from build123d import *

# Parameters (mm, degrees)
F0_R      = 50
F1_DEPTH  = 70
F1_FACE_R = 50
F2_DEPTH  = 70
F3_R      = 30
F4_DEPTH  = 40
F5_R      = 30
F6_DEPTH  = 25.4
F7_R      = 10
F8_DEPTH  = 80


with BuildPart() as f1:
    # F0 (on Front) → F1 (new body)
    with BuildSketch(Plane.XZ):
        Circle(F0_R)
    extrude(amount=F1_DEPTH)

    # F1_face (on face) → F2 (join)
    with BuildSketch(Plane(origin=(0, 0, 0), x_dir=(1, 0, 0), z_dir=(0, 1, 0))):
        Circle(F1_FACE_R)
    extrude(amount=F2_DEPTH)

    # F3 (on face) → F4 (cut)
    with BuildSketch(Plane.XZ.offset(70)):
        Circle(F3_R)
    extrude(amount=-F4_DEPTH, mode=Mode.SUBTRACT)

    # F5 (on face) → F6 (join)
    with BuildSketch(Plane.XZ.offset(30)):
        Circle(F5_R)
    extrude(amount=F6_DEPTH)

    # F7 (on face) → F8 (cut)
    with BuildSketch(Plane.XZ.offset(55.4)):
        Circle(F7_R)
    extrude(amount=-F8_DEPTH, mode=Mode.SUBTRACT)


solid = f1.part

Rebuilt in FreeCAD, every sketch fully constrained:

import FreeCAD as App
import Part
import Sketcher
from FreeCAD import Vector
Q = App.Units.Quantity

doc = App.newDocument("Part")
body = doc.addObject("PartDesign::Body", "Body")

# Sketch on XZ plane
sketch1 = body.newObject("Sketcher::SketchObject", "Sketch")
sketch1.AttachmentSupport = (doc.getObject("XZ_Plane"), [""])
sketch1.MapMode = "FlatFace"
sketch1.addGeometry(Part.Circle(Vector(0, 0, 0), Vector(0, 0, 1), 50), False)
sketch1.addConstraint(Sketcher.Constraint("Coincident", 0, 3, -1, 1))
sketch1.addConstraint(Sketcher.Constraint("Diameter", 0, Q("100 mm")))
pad1 = body.newObject("PartDesign::Pad", "Pad")
pad1.Profile = sketch1
pad1.Length = 70

# Sketch on XZ plane
sketch2 = body.newObject("Sketcher::SketchObject", "Sketch001")
sketch2.AttachmentSupport = (doc.getObject("XZ_Plane"), [""])
sketch2.MapMode = "FlatFace"
sketch2.addGeometry(Part.Circle(Vector(0, 0, 0), Vector(0, 0, 1), 50), False)
sketch2.addConstraint(Sketcher.Constraint("Coincident", 0, 3, -1, 1))
sketch2.addConstraint(Sketcher.Constraint("Diameter", 0, Q("100 mm")))
pad2 = body.newObject("PartDesign::Pad", "Pad001")
pad2.Profile = sketch2
pad2.Length = 70
pad2.Reversed = True

# Sketch on XZ plane
sketch3 = body.newObject("Sketcher::SketchObject", "Sketch002")
sketch3.AttachmentSupport = (doc.getObject("XZ_Plane"), [""])
sketch3.MapMode = "FlatFace"
sketch3.AttachmentOffset = App.Placement(Vector(0, 0, 70), App.Rotation())
sketch3.addGeometry(Part.Circle(Vector(0, 0, 0), Vector(0, 0, 1), 30), False)
sketch3.addConstraint(Sketcher.Constraint("Coincident", 0, 3, -1, 1))
sketch3.addConstraint(Sketcher.Constraint("Diameter", 0, Q("60 mm")))
pocket1 = body.newObject("PartDesign::Pocket", "Pocket")
pocket1.Profile = sketch3
pocket1.Length = 40

# Sketch on XZ plane
sketch4 = body.newObject("Sketcher::SketchObject", "Sketch003")
sketch4.AttachmentSupport = (doc.getObject("XZ_Plane"), [""])
sketch4.MapMode = "FlatFace"
sketch4.AttachmentOffset = App.Placement(Vector(0, 0, 30), App.Rotation())
sketch4.addGeometry(Part.Circle(Vector(0, 0, 0), Vector(0, 0, 1), 30), False)
sketch4.addConstraint(Sketcher.Constraint("Coincident", 0, 3, -1, 1))
sketch4.addConstraint(Sketcher.Constraint("Diameter", 0, Q("60 mm")))
pad3 = body.newObject("PartDesign::Pad", "Pad002")
pad3.Profile = sketch4
pad3.Length = 25.4

# Sketch on XZ plane
sketch5 = body.newObject("Sketcher::SketchObject", "Sketch004")
sketch5.AttachmentSupport = (doc.getObject("XZ_Plane"), [""])
sketch5.MapMode = "FlatFace"
sketch5.AttachmentOffset = App.Placement(Vector(0, 0, 55.4), App.Rotation())
sketch5.addGeometry(Part.Circle(Vector(0, 0, 0), Vector(0, 0, 1), 10), False)
sketch5.addConstraint(Sketcher.Constraint("Coincident", 0, 3, -1, 1))
sketch5.addConstraint(Sketcher.Constraint("Diameter", 0, Q("20 mm")))
pocket2 = body.newObject("PartDesign::Pocket", "Pocket001")
pocket2.Profile = sketch5
pocket2.Length = 80

doc.recompute()
